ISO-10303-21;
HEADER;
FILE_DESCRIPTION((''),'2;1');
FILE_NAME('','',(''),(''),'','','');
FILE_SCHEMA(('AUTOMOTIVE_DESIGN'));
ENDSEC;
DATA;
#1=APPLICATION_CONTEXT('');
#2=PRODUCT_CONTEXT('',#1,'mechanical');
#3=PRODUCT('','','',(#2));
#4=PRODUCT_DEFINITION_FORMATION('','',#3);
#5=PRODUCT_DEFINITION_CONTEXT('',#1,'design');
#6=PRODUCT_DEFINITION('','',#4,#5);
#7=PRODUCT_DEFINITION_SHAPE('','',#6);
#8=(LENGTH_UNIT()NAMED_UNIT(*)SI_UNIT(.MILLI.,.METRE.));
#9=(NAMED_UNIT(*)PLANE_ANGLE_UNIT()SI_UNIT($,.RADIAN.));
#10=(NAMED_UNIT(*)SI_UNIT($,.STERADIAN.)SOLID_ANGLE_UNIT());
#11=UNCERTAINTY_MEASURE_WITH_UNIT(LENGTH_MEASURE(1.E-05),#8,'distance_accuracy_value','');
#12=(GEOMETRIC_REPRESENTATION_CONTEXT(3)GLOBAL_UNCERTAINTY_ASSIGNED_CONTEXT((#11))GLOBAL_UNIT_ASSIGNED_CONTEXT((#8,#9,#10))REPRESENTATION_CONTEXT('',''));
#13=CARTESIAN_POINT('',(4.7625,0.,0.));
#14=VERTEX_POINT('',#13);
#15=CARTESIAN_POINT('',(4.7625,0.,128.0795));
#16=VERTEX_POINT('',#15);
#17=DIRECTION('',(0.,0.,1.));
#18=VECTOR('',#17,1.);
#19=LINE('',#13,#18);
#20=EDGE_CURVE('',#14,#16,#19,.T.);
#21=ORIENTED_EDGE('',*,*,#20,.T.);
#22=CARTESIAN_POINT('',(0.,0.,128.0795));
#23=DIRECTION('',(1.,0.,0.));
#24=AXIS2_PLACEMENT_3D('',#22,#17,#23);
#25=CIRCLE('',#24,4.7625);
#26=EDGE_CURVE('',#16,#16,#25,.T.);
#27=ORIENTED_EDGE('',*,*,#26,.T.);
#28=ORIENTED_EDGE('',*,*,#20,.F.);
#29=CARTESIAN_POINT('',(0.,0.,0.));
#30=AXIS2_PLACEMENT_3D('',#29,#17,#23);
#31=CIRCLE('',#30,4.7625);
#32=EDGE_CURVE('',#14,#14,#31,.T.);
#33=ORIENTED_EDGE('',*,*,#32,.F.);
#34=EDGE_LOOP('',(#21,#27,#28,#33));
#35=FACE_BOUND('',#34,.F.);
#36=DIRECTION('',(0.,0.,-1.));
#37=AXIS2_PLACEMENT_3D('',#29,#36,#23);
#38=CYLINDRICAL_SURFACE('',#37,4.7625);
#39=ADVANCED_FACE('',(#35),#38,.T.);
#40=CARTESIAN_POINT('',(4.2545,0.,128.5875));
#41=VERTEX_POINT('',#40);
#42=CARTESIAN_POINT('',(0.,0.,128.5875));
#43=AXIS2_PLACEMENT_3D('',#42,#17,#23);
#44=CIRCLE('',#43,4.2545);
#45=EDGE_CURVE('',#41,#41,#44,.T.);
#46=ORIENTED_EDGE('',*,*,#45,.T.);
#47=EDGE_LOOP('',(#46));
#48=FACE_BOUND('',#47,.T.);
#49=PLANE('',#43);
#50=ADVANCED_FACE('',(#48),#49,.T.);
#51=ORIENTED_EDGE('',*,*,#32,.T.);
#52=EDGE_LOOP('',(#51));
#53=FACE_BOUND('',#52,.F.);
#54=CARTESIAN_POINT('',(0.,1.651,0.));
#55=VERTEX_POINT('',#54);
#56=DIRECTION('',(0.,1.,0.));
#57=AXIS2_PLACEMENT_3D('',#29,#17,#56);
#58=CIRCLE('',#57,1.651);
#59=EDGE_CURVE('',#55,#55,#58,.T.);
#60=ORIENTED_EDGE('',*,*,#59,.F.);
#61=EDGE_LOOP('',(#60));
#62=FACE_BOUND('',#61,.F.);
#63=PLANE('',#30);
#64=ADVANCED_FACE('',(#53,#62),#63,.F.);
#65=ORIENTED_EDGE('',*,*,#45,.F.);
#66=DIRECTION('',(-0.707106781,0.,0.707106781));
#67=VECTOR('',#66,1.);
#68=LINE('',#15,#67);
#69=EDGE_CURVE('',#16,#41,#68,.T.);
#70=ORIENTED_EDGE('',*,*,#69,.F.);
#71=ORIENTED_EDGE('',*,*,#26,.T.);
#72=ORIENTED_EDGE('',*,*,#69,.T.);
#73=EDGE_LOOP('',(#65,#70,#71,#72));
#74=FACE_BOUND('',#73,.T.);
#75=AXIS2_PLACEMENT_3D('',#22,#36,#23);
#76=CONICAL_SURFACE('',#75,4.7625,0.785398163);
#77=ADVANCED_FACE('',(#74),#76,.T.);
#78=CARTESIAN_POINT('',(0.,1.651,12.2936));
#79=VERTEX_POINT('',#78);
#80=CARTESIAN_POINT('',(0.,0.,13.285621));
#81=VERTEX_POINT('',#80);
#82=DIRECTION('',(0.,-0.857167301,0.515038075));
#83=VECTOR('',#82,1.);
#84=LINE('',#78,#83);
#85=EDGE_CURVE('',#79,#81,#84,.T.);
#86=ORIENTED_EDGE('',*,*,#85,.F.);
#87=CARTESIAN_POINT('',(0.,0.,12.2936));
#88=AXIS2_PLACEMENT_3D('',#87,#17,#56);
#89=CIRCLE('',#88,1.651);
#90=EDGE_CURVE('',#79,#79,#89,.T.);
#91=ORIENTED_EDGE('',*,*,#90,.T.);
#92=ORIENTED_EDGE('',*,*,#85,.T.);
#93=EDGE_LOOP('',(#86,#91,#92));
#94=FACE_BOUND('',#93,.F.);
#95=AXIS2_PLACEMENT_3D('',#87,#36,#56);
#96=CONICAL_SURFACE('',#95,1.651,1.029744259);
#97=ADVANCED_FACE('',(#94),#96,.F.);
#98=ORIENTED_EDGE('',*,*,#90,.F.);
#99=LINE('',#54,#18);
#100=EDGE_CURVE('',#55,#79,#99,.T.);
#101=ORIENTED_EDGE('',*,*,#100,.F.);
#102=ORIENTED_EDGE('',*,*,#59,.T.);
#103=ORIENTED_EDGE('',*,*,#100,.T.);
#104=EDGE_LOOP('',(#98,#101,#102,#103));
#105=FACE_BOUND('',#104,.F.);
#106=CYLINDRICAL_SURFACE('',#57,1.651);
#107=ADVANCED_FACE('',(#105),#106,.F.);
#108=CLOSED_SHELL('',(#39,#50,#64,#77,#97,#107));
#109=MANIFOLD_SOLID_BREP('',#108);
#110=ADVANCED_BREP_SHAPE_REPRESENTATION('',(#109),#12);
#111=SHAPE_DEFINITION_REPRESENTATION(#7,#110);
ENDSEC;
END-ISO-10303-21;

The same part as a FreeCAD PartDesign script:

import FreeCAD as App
import Part
import Sketcher
Q = App.Units.Quantity


def edges_at(feature, points):
    """Names of the edges that pass closest to the given points."""
    edges = feature.Shape.Edges
    near = lambda p: min(range(len(edges)), key=lambda i: edges[i].distToShape(Part.Vertex(*p))[0])
    return sorted({f"Edge{near(p) + 1}" for p in points})

doc = App.newDocument("Part")
params = doc.addObject("Spreadsheet::Sheet", "Params")
for row, (alias, value) in enumerate([
    ("sketch1_diameter", "0.375 in"),
    ("pad1_length", "5.0625 in"),
    ("sketch2_diameter", "0.13 in"),
    ("hole_diameter", "0.13 in"),
    ("hole_depth", "0.484 in"),
    ("chamfer_size", "0.02 in"),
], start=1):
    params.set(f"A{row}", alias)
    params.set(f"B{row}", "=" + value)
    params.setAlias(f"B{row}", alias)

body = doc.addObject("PartDesign::Body", "Body")

# Sketch on XY plane
sketch1 = body.newObject("Sketcher::SketchObject", "Sketch")
sketch1.AttachmentSupport = (doc.getObject("XY_Plane"), [""])
sketch1.MapMode = "FlatFace"
sketch1.addGeometry(Part.Circle(App.Vector(0, 0, 0), App.Vector(0, 0, 1), 4.8), False)
sketch1.addConstraint([
    Sketcher.Constraint("Coincident", 0, 3, -1, 1),
    Sketcher.Constraint("Diameter", 0, Q("0.375 in")),
])
sketch1.setExpression("Constraints[1]", "Params.sketch1_diameter")
pad1 = body.newObject("PartDesign::Pad", "Pad")
pad1.Profile = sketch1
pad1.setExpression("Length", "Params.pad1_length")

# Sketch on XY plane
sketch2 = body.newObject("Sketcher::SketchObject", "Sketch001")
sketch2.AttachmentSupport = (doc.getObject("XY_Plane"), [""])
sketch2.MapMode = "FlatFace"
sketch2.addGeometry(Part.Circle(App.Vector(0, 0, 0), App.Vector(0, 0, 1), 1.7), False)
sketch2.addConstraint([
    Sketcher.Constraint("Coincident", 0, 3, -1, 1),
    Sketcher.Constraint("Diameter", 0, Q("0.13 in")),
])
sketch2.setExpression("Constraints[1]", "Params.sketch2_diameter")
doc.recompute()
hole = body.newObject("PartDesign::Hole", "Hole")
hole.Profile = sketch2
hole.ThreadType = "None"
hole.setExpression("Diameter", "Params.hole_diameter")
hole.DepthType = "Dimension"
hole.setExpression("Depth", "Params.hole_depth")
hole.DrillPoint = "Angled"
hole.DrillPointAngle = 118
hole.Reversed = True
doc.recompute()

chamfer = body.newObject("PartDesign::Chamfer", "Chamfer")
chamfer.Base = (hole, edges_at(hole, [(-4.763, 0, 128.588)]))
chamfer.setExpression("Size", "Params.chamfer_size")

doc.recompute()
